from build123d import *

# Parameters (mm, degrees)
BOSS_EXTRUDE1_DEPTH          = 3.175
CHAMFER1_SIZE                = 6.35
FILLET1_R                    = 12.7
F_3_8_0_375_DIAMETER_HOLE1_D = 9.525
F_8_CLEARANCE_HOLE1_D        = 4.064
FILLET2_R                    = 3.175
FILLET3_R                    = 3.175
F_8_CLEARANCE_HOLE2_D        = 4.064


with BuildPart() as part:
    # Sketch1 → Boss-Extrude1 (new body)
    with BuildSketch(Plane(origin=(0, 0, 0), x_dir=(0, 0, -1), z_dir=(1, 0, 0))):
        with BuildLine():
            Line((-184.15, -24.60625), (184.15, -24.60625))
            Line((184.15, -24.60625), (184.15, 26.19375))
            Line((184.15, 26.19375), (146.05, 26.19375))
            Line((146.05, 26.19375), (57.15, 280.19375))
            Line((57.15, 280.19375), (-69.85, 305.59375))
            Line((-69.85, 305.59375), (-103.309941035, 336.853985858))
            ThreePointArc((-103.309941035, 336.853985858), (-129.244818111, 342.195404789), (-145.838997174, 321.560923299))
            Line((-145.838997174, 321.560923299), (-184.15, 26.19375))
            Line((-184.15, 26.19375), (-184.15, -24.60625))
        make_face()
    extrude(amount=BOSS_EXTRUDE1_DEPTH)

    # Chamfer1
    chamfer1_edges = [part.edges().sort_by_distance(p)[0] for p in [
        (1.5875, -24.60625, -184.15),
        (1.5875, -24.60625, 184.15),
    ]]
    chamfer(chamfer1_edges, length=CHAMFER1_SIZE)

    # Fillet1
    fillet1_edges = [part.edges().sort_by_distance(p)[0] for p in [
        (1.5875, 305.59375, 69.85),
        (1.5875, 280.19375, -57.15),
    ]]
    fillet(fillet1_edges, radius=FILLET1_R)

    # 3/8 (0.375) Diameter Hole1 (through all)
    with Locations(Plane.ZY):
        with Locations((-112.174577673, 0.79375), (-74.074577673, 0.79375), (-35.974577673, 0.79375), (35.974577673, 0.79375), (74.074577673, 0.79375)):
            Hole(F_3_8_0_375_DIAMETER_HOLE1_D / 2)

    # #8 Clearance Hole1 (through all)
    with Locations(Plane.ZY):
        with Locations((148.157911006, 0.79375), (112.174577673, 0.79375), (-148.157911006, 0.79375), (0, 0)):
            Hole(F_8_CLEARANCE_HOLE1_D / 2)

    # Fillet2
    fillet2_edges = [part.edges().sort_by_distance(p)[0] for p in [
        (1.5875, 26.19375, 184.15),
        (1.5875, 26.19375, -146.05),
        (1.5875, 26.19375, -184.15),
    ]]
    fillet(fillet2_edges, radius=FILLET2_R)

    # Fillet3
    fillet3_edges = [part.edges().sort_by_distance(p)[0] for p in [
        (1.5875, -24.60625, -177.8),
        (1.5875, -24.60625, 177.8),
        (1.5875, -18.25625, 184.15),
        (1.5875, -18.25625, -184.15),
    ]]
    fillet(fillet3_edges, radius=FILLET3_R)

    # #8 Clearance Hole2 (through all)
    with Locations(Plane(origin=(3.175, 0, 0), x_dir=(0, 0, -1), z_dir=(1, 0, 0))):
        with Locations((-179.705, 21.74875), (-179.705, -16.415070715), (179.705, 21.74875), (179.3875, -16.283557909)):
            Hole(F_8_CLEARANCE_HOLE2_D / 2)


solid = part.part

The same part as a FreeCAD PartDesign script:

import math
import FreeCAD as App
import Part
import Sketcher
from FreeCAD import Vector
Q = App.Units.Quantity


def edges_at(feature, points):
    """Names of the edges that pass closest to the given points."""
    edges = feature.Shape.Edges
    near = lambda p: min(range(len(edges)), key=lambda i: edges[i].distToShape(Part.Vertex(*p))[0])
    return sorted({f"Edge{near(p) + 1}" for p in points})

doc = App.newDocument("Part")
params = doc.addObject("Spreadsheet::Sheet", "Params")
for row, (alias, value) in enumerate([
    ("sketch1_radius", "1 in"),
    ("sketch1_width", "2 in"),
    ("sketch1_height", "14.5 in"),
    ("sketch1_height2", "1.5 in"),
    ("pad1_length", "0.125 in"),
    ("chamfer_size", "0.25 in"),
    ("fillet_radius", "0.5 in"),
    ("sketch2_diameter", "0.375 in"),
    ("hole_diameter", "0.375 in"),
    ("sketch3_diameter", "0.16 in"),
    ("hole2_diameter", "0.16 in"),
    ("fillet2_radius", "0.125 in"),
    ("fillet3_radius", "0.125 in"),
    ("sketch4_diameter", "0.16 in"),
    ("hole3_diameter", "0.16 in"),
], start=1):
    params.set(f"A{row}", alias)
    params.set(f"B{row}", "=" + value)
    params.setAlias(f"B{row}", alias)

body = doc.addObject("PartDesign::Body", "Body")

# Sketch on YZ plane
sketch1 = body.newObject("Sketcher::SketchObject", "Sketch")
sketch1.AttachmentSupport = (doc.getObject("YZ_Plane"), [""])
sketch1.MapMode = "FlatFace"
sketch1.addGeometry([
    Part.LineSegment(Vector(-25, 184, 0), Vector(-25, -184, 0)),  # 0
    Part.LineSegment(Vector(-25, -184, 0), Vector(26, -184, 0)),  # 1
    Part.LineSegment(Vector(26, -184, 0), Vector(26, -146, 0)),  # 2
    Part.LineSegment(Vector(26, -146, 0), Vector(280, -57, 0)),  # 3
    Part.LineSegment(Vector(280, -57, 0), Vector(306, 70, 0)),  # 4
    Part.LineSegment(Vector(306, 70, 0), Vector(337, 103, 0)),  # 5
    Part.ArcOfCircle(Part.Circle(Vector(318, 121, 0), Vector(0, 0, 1), 25), math.radians(-43), math.radians(83)),  # 6
    Part.LineSegment(Vector(322, 146, 0), Vector(26, 184, 0)),  # 7
    Part.LineSegment(Vector(26, 184, 0), Vector(-25, 184, 0)),  # 8
], False)
sketch1.addConstraint([
    Sketcher.Constraint("Coincident", 0, 2, 1, 1),
    Sketcher.Constraint("Coincident", 1, 2, 2, 1),
    Sketcher.Constraint("Coincident", 2, 2, 3, 1),
    Sketcher.Constraint("Coincident", 3, 2, 4, 1),
    Sketcher.Constraint("Coincident", 4, 2, 5, 1),
    Sketcher.Constraint("Tangent", 5, 2, 6, 1),
    Sketcher.Constraint("Tangent", 6, 2, 7, 1),
    Sketcher.Constraint("Coincident", 7, 2, 8, 1),
    Sketcher.Constraint("Coincident", 8, 2, 0, 1),
    Sketcher.Constraint("Vertical", 0),
    Sketcher.Constraint("Horizontal", 1),
    Sketcher.Constraint("Vertical", 2),
    Sketcher.Constraint("Horizontal", 8),
    Sketcher.Constraint("Symmetric", 1, 2, 7, 2, -1),
    Sketcher.Constraint("Radius", 6, Q("1 in")),
    Sketcher.Constraint("DistanceX", 1, 1, 1, 2, Q("2 in")),
    Sketcher.Constraint("DistanceY", 0, 2, 0, 1, Q("14.5 in")),
    Sketcher.Constraint("DistanceY", 2, 1, 2, 2, Q("1.5 in")),
    Sketcher.Constraint("DistanceY", 0, 2, 6, 3, Q("12 in")),
    Sketcher.Constraint("DistanceY", 3, 2, 6, 3, Q("7 in")),
    Sketcher.Constraint("DistanceX", 2, 2, 3, 2, Q("10 in")),
    Sketcher.Constraint("DistanceY", 4, 2, 6, 3, Q("2 in")),
    Sketcher.Constraint("DistanceX", 3, 2, 4, 2, Q("1 in")),
    Sketcher.Constraint("DistanceX", 0, 2, 6, 3, Q("13.5 in")),
    Sketcher.Constraint("DistanceX", -1, 1, 6, 3, Q("12.53125 in")),
])
sketch1.setExpression("Constraints[14]", "Params.sketch1_radius")
sketch1.setExpression("Constraints[15]", "Params.sketch1_width")
sketch1.setExpression("Constraints[16]", "Params.sketch1_height")
sketch1.setExpression("Constraints[17]", "Params.sketch1_height2")
pad1 = body.newObject("PartDesign::Pad", "Pad")
pad1.Profile = sketch1
pad1.setExpression("Length", "Params.pad1_length")
doc.recompute()

chamfer = body.newObject("PartDesign::Chamfer", "Chamfer")
chamfer.Base = (pad1, edges_at(pad1, [(1.587, -24.606, -184.15), (1.587, -24.606, 184.15)]))
chamfer.setExpression("Size", "Params.chamfer_size")
doc.recompute()

fillet = body.newObject("PartDesign::Fillet", "Fillet")
fillet.Base = (chamfer, edges_at(chamfer, [(1.587, 305.594, 69.85), (1.587, 280.194, -57.15)]))
fillet.setExpression("Radius", "Params.fillet_radius")

# Sketch on YZ plane
sketch2 = body.newObject("Sketcher::SketchObject", "Sketch001")
sketch2.AttachmentSupport = (doc.getObject("YZ_Plane"), [""])
sketch2.MapMode = "FlatFace"
sketch2.addGeometry([
    Part.Circle(Vector(0.8, -112.2, 0), Vector(0, 0, 1), 4.8),  # 0
    Part.Circle(Vector(0.8, -74.1, 0), Vector(0, 0, 1), 4.8),  # 1
    Part.Circle(Vector(0.8, -36, 0), Vector(0, 0, 1), 4.8),  # 2
    Part.Circle(Vector(0.8, 36, 0), Vector(0, 0, 1), 4.8),  # 3
    Part.Circle(Vector(0.8, 74.1, 0), Vector(0, 0, 1), 4.8),  # 4
], False)
sketch2.addConstraint([
    Sketcher.Constraint("Equal", 0, 1),
    Sketcher.Constraint("Equal", 1, 2),
    Sketcher.Constraint("Equal", 2, 3),
    Sketcher.Constraint("Equal", 3, 4),
    Sketcher.Constraint("Symmetric", 2, 3, 3, 3, -1),
    Sketcher.Constraint("Symmetric", 1, 3, 4, 3, -1),
    Sketcher.Constraint("Vertical", 0, 3, 1, 3),
    Sketcher.Constraint("Vertical", 1, 3, 2, 3),
    Sketcher.Constraint("Diameter", 0, Q("0.375 in")),
    Sketcher.Constraint("DistanceY", 0, 3, 2, 3, Q("3 in")),
    Sketcher.Constraint("DistanceY", 0, 3, 1, 3, Q("1.5 in")),
    Sketcher.Constraint("DistanceX", -1, 1, 0, 3, Q("0.03125 in")),
    Sketcher.Constraint("DistanceY", 0, 3, -1, 1, Q("112.174578 mm")),
])
sketch2.setExpression("Constraints[8]", "Params.sketch2_diameter")
doc.recompute()
hole = body.newObject("PartDesign::Hole", "Hole")
hole.Profile = sketch2
hole.ThreadType = "None"
hole.setExpression("Diameter", "Params.hole_diameter")
hole.DepthType = "ThroughAll"
hole.Reversed = True

# Sketch on YZ plane
sketch3 = body.newObject("Sketcher::SketchObject", "Sketch002")
sketch3.AttachmentSupport = (doc.getObject("YZ_Plane"), [""])
sketch3.MapMode = "FlatFace"
sketch3.addGeometry([
    Part.Circle(Vector(0.8, 148.2, 0), Vector(0, 0, 1), 2),
    Part.Circle(Vector(0.8, 112.2, 0), Vector(0, 0, 1), 2),
    Part.Circle(Vector(0.8, -148.2, 0), Vector(0, 0, 1), 2),
    Part.Circle(Vector(0, 0, 0), Vector(0, 0, 1), 2),
], False)
sketch3.addConstraint([
    Sketcher.Constraint("Coincident", 3, 3, -1, 1),
    Sketcher.Constraint("Equal", 0, 1),
    Sketcher.Constraint("Equal", 1, 2),
    Sketcher.Constraint("Equal", 2, 3),
    Sketcher.Constraint("Symmetric", 0, 3, 2, 3, -1),
    Sketcher.Constraint("Vertical", 0, 3, 1, 3),
    Sketcher.Constraint("Diameter", 0, Q("0.16 in")),
    Sketcher.Constraint("DistanceX", -1, 1, 0, 3, Q("0.03125 in")),
    Sketcher.Constraint("DistanceY", -1, 1, 0, 3, Q("148.157911 mm")),
    Sketcher.Constraint("DistanceY", 2, 3, 1, 3, Q("260.332489 mm")),
])
sketch3.setExpression("Constraints[6]", "Params.sketch3_diameter")
doc.recompute()
hole2 = body.newObject("PartDesign::Hole", "Hole001")
hole2.Profile = sketch3
hole2.ThreadType = "None"
hole2.setExpression("Diameter", "Params.hole2_diameter")
hole2.DepthType = "ThroughAll"
hole2.Reversed = True
doc.recompute()

fillet2 = body.newObject("PartDesign::Fillet", "Fillet001")
fillet2.Base = (hole2, edges_at(hole2, [(1.587, 26.194, 184.15), (1.587, 26.194, -146.05), (1.587, 26.194, -184.15)]))
fillet2.setExpression("Radius", "Params.fillet2_radius")
doc.recompute()

fillet3 = body.newObject("PartDesign::Fillet", "Fillet002")
fillet3.Base = (fillet2, edges_at(fillet2, [
    (1.587, -24.606, -177.8),
    (1.587, -24.606, 177.8),
    (1.587, -18.256, 184.15),
    (1.587, -18.256, -184.15),
]))
fillet3.setExpression("Radius", "Params.fillet3_radius")

# Sketch on YZ plane
sketch4 = body.newObject("Sketcher::SketchObject", "Sketch003")
sketch4.AttachmentSupport = (doc.getObject("YZ_Plane"), [""])
sketch4.MapMode = "FlatFace"
sketch4.AttachmentOffset = App.Placement(Vector(0, 0, 0.125 * 25.4), App.Rotation())
sketch4.addGeometry([
    Part.Circle(Vector(21.7, 179.7, 0), Vector(0, 0, 1), 2),
    Part.Circle(Vector(-16.4, 179.7, 0), Vector(0, 0, 1), 2),
    Part.Circle(Vector(21.7, -179.7, 0), Vector(0, 0, 1), 2),
    Part.Circle(Vector(-16.3, -179.4, 0), Vector(0, 0, 1), 2),
], False)
sketch4.addConstraint([
    Sketcher.Constraint("Equal", 0, 1),
    Sketcher.Constraint("Equal", 1, 2),
    Sketcher.Constraint("Equal", 2, 3),
    Sketcher.Constraint("Symmetric", 0, 3, 2, 3, -1),
    Sketcher.Constraint("Horizontal", 0, 3, 1, 3),
    Sketcher.Constraint("Diameter", 0, Q("0.16 in")),
    Sketcher.Constraint("DistanceY", 2, 3, 0, 3, Q("14.15 in")),
    Sketcher.Constraint("DistanceY", 3, 3, -1, 1, Q("7.0625 in")),
    Sketcher.Constraint("DistanceX", -1, 1, 0, 3, Q("21.74875 mm")),
    Sketcher.Constraint("DistanceX", 1, 3, -1, 1, Q("16.415071 mm")),
    Sketcher.Constraint("DistanceX", 3, 3, -1, 1, Q("16.283558 mm")),
])
sketch4.setExpression("Constraints[5]", "Params.sketch4_diameter")
doc.recompute()
hole3 = body.newObject("PartDesign::Hole", "Hole002")
hole3.Profile = sketch4
hole3.ThreadType = "None"
hole3.setExpression("Diameter", "Params.hole3_diameter")
hole3.DepthType = "ThroughAll"

doc.recompute()
